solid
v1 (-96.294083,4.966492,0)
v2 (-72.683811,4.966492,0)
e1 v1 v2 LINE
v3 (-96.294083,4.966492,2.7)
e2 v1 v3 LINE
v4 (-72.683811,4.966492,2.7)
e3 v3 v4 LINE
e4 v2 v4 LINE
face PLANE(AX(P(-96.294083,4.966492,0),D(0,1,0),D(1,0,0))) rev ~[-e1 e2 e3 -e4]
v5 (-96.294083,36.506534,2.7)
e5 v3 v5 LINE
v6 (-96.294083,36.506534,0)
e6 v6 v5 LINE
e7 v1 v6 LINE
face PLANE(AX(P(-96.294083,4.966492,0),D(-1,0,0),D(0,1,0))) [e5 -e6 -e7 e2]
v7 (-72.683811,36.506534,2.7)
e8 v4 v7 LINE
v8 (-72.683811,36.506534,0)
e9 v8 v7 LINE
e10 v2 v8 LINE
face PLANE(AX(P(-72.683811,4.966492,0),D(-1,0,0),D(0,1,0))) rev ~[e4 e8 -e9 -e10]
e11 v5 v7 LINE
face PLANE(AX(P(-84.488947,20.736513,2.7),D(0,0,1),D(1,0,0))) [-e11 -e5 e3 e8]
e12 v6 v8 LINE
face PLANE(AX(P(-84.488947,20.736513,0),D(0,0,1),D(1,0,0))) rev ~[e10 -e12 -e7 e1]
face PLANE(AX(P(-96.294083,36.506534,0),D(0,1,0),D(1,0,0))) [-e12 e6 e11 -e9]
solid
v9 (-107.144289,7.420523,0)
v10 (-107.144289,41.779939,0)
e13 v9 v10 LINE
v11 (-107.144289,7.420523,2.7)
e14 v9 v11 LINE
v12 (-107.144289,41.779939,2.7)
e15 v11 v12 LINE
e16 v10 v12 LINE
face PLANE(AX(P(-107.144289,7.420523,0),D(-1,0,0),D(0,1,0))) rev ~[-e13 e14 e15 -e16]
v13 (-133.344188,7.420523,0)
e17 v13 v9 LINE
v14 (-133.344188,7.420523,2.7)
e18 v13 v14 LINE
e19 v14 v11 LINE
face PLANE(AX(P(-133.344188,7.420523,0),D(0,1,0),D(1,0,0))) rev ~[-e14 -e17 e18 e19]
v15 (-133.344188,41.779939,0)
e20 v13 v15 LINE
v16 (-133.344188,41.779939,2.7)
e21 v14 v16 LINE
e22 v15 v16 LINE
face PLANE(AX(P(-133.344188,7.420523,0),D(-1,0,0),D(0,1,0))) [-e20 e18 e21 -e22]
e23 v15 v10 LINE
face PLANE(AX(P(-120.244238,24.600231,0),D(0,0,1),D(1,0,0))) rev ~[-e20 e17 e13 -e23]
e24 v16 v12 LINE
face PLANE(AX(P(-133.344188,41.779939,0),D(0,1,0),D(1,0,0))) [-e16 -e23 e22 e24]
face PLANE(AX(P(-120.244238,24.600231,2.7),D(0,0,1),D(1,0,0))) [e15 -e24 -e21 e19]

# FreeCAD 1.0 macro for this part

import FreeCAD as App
import Part
import Sketcher
from FreeCAD import Vector
Q = App.Units.Quantity

doc = App.newDocument("Part")
body = doc.addObject("PartDesign::Body", "Body")
body.AllowCompound = True

# Sketch on XY plane
sketch1 = body.newObject("Sketcher::SketchObject", "Sketch")
sketch1.AttachmentSupport = (doc.getObject("XY_Plane"), [""])
sketch1.MapMode = "FlatFace"
sketch1.addGeometry(Part.LineSegment(Vector(-133, 42, 0), Vector(-133, 7, 0)), False)
sketch1.addGeometry(Part.LineSegment(Vector(-133, 7, 0), Vector(-107, 7, 0)), False)
sketch1.addGeometry(Part.LineSegment(Vector(-107, 7, 0), Vector(-107, 42, 0)), False)
sketch1.addGeometry(Part.LineSegment(Vector(-107, 42, 0), Vector(-133, 42, 0)), False)
sketch1.addGeometry(Part.LineSegment(Vector(-96, 37, 0), Vector(-96, 5, 0)), False)
sketch1.addGeometry(Part.LineSegment(Vector(-96, 5, 0), Vector(-73, 5, 0)), False)
sketch1.addGeometry(Part.LineSegment(Vector(-73, 5, 0), Vector(-73, 37, 0)), False)
sketch1.addGeometry(Part.LineSegment(Vector(-73, 37, 0), Vector(-96, 37, 0)), False)
sketch1.addConstraint(Sketcher.Constraint("Coincident", 0, 2, 1, 1))
sketch1.addConstraint(Sketcher.Constraint("Coincident", 1, 2, 2, 1))
sketch1.addConstraint(Sketcher.Constraint("Coincident", 2, 2, 3, 1))
sketch1.addConstraint(Sketcher.Constraint("Coincident", 3, 2, 0, 1))
sketch1.addConstraint(Sketcher.Constraint("Coincident", 4, 2, 5, 1))
sketch1.addConstraint(Sketcher.Constraint("Coincident", 5, 2, 6, 1))
sketch1.addConstraint(Sketcher.Constraint("Coincident", 6, 2, 7, 1))
sketch1.addConstraint(Sketcher.Constraint("Coincident", 7, 2, 4, 1))
sketch1.addConstraint(Sketcher.Constraint("Vertical", 0))
sketch1.addConstraint(Sketcher.Constraint("Horizontal", 1))
sketch1.addConstraint(Sketcher.Constraint("Vertical", 2))
sketch1.addConstraint(Sketcher.Constraint("Horizontal", 3))
sketch1.addConstraint(Sketcher.Constraint("Vertical", 4))
sketch1.addConstraint(Sketcher.Constraint("Horizontal", 5))
sketch1.addConstraint(Sketcher.Constraint("Vertical", 6))
sketch1.addConstraint(Sketcher.Constraint("Horizontal", 7))
sketch1.addConstraint(Sketcher.Constraint("DistanceX", 1, 1, 1, 2, Q("26.199899 mm")))
sketch1.addConstraint(Sketcher.Constraint("DistanceX", 5, 1, 5, 2, Q("23.610272 mm")))
sketch1.addConstraint(Sketcher.Constraint("DistanceY", 0, 2, 0, 1, Q("34.359416 mm")))
sketch1.addConstraint(Sketcher.Constraint("DistanceY", 4, 2, 4, 1, Q("31.540042 mm")))
sketch1.addConstraint(Sketcher.Constraint("DistanceX", 1, 2, -1, 1, Q("107.144289 mm")))
sketch1.addConstraint(Sketcher.Constraint("DistanceY", -1, 1, 2, 2, Q("41.779939 mm")))
sketch1.addConstraint(Sketcher.Constraint("DistanceY", -1, 1, 4, 2, Q("4.966492 mm")))
sketch1.addConstraint(Sketcher.Constraint("DistanceX", 5, 2, -1, 1, Q("72.683811 mm")))
pad1 = body.newObject("PartDesign::Pad", "Pad")
pad1.Profile = sketch1
pad1.Length = 2.7

doc.recompute()
